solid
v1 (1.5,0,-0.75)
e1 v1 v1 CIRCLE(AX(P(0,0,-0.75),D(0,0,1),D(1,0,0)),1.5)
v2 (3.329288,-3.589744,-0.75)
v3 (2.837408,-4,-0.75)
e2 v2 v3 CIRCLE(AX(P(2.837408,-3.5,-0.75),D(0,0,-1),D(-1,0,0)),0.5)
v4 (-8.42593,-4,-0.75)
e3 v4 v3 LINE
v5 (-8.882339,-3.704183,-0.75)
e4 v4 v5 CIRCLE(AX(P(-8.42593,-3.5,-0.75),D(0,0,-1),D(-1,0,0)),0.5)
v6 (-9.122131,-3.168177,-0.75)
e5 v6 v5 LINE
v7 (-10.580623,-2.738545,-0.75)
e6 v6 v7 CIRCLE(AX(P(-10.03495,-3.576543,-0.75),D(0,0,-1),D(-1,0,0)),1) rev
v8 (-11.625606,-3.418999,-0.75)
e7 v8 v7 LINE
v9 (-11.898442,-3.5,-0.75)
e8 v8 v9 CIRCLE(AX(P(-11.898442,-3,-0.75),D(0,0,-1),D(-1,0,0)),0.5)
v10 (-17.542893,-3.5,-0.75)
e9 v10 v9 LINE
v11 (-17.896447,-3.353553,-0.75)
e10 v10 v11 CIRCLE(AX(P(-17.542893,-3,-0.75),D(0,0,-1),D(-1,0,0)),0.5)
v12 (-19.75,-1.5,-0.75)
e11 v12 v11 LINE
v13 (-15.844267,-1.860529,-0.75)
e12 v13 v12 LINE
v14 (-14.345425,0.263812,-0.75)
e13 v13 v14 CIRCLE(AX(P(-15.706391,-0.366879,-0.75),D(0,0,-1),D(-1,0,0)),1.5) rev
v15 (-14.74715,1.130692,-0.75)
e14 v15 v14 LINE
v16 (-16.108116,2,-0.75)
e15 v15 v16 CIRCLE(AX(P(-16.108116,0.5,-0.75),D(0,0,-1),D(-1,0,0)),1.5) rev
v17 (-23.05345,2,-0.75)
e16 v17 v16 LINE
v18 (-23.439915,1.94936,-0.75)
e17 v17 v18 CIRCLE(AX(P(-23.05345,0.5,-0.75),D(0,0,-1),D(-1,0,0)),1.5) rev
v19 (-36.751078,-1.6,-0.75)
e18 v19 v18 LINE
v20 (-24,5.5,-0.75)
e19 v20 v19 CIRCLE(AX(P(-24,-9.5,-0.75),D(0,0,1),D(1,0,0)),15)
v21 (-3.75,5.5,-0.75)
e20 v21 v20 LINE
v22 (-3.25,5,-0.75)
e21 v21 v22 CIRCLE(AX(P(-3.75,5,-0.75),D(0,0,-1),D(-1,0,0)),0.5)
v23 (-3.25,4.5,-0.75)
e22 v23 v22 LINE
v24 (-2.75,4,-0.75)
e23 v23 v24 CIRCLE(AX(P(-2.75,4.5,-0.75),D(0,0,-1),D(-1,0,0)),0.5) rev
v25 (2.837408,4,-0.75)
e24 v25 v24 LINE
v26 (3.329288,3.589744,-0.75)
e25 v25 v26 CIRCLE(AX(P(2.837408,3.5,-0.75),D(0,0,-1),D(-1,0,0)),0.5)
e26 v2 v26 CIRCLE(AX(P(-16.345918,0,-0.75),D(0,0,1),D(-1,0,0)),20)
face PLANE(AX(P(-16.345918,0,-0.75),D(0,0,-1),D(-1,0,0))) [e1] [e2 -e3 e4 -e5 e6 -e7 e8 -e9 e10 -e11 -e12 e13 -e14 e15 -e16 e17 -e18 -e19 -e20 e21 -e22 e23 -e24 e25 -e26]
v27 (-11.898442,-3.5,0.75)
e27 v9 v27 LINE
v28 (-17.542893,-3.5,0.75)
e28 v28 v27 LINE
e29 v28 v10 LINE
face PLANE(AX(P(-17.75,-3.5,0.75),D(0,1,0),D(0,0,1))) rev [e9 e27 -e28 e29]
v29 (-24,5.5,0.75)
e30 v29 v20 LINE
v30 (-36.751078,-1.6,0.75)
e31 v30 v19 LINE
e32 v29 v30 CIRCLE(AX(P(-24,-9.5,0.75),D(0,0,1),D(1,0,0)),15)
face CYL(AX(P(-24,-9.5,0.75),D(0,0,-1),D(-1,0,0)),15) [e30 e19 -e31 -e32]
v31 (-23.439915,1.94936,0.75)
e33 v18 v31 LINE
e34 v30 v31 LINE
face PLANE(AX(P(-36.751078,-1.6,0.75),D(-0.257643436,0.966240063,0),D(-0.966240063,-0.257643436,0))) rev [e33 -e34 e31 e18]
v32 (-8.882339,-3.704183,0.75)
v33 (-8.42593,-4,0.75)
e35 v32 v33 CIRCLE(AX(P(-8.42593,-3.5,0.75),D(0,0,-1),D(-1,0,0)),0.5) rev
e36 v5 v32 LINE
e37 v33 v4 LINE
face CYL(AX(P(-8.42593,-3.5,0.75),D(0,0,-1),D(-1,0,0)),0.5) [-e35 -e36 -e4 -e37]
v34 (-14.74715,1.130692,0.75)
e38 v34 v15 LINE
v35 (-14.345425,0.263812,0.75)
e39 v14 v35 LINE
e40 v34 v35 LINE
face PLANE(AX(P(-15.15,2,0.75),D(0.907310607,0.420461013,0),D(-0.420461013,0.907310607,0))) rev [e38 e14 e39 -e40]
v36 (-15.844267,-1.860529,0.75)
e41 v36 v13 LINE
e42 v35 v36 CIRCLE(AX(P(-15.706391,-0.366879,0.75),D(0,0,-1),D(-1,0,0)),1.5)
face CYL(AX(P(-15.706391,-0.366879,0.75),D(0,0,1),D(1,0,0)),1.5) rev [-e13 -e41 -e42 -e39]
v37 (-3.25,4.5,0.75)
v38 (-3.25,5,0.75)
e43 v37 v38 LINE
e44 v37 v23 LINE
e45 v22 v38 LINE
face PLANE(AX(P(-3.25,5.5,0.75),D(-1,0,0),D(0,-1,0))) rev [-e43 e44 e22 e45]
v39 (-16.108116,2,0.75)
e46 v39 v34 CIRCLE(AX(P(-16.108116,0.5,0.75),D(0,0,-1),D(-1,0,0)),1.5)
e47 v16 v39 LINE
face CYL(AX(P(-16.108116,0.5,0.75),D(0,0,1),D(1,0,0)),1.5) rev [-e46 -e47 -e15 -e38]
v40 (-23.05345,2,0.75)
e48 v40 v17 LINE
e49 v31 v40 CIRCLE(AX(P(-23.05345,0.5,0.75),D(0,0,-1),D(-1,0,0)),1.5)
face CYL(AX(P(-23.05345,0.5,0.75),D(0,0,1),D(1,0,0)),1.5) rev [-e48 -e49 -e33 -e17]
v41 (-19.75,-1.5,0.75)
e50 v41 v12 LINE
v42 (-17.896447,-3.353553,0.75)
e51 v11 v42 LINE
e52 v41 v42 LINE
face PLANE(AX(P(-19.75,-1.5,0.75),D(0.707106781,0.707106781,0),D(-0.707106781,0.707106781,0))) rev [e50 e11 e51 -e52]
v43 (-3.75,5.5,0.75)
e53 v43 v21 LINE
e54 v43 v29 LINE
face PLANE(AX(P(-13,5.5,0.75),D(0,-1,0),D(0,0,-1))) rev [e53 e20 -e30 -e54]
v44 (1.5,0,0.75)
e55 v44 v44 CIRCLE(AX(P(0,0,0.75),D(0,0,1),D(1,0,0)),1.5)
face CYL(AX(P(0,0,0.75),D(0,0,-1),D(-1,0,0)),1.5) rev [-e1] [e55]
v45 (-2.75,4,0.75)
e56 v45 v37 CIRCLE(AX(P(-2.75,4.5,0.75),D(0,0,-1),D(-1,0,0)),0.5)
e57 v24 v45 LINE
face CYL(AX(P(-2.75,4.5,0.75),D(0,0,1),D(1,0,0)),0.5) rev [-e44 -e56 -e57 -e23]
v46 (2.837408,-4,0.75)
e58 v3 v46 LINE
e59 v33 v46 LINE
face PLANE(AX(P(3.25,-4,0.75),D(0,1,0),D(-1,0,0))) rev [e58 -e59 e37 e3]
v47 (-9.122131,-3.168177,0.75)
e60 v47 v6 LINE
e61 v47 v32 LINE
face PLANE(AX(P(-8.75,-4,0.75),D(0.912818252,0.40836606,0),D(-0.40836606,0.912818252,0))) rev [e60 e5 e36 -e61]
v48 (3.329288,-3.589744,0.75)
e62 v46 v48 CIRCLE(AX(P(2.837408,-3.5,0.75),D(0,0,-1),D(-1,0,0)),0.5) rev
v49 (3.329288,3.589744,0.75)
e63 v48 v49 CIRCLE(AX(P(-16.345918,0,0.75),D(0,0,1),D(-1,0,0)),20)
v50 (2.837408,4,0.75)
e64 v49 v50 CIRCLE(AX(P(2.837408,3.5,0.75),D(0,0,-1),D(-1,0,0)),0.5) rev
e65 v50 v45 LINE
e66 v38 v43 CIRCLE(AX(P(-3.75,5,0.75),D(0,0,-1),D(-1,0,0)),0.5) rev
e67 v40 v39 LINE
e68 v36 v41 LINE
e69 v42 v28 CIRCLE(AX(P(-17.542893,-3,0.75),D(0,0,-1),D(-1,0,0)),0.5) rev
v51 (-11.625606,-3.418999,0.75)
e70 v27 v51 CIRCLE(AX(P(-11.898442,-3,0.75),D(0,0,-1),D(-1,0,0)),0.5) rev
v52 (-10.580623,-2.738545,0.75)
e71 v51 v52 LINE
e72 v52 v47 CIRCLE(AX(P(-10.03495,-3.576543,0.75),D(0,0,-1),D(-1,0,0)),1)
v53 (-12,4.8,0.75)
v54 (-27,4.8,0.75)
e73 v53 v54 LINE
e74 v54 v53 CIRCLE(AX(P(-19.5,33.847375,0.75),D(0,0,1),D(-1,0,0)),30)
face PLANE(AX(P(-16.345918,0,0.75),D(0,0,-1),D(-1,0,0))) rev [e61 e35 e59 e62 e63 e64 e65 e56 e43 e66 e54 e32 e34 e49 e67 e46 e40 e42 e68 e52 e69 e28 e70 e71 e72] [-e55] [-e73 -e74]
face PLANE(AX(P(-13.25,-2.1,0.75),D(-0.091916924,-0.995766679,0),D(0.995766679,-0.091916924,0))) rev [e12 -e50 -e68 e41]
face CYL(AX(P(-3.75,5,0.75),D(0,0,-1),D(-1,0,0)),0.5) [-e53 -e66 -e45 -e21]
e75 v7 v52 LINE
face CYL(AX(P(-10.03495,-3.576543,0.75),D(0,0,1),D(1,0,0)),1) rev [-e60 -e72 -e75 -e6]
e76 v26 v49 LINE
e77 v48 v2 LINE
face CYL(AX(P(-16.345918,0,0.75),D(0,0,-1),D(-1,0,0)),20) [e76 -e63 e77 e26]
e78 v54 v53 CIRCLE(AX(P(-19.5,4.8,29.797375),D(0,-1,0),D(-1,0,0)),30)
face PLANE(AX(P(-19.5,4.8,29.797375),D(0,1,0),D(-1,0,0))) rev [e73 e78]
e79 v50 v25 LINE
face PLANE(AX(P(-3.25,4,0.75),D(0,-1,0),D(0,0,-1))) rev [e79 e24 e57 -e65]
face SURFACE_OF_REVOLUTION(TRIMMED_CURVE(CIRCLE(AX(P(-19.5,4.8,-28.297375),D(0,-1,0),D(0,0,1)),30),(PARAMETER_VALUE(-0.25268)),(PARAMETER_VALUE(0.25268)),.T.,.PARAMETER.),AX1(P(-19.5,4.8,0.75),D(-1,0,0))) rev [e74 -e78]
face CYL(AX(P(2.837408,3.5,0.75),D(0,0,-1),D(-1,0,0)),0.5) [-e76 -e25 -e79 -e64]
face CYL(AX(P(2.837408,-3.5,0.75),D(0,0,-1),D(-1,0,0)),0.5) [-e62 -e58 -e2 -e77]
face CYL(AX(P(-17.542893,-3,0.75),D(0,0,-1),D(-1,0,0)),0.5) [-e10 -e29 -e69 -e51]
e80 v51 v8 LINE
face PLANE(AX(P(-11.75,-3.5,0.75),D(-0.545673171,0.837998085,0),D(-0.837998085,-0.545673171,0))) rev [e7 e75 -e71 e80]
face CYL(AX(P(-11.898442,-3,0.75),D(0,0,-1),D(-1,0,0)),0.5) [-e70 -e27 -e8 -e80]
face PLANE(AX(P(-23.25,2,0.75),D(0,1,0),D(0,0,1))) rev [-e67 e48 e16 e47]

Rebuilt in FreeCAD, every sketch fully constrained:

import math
import FreeCAD as App
import Part
import Sketcher
from FreeCAD import Vector
Q = App.Units.Quantity


def edges_at(feature, points):
    """Names of the edges that pass closest to the given points."""
    edges = feature.Shape.Edges
    near = lambda p: min(range(len(edges)), key=lambda i: edges[i].distToShape(Part.Vertex(*p))[0])
    return sorted({f"Edge{near(p) + 1}" for p in points})

doc = App.newDocument("Part")
params = doc.addObject("Spreadsheet::Sheet", "Params")
for row, (alias, value) in enumerate([
    ("sketch1_diameter", "3 mm"),
    ("sketch1_radius", "20 mm"),
    ("sketch1_width", "12 mm"),
    ("sketch1_width2", "6.5 mm"),
    ("sketch1_height", "1.5 mm"),
    ("pad1_length", "1.5 mm"),
    ("sketch2_radius", "15 mm"),
    ("sketch2_width", "11 mm"),
    ("sketch2_width2", "6 mm"),
    ("sketch2_width3", "8.1 mm"),
    ("pad2_length", "1.5 mm"),
    ("fillet_radius", "1 mm"),
    ("fillet2_radius", "0.5 mm"),
    ("fillet3_radius", "1.5 mm"),
    ("sketch3_radius", "30 mm"),
    ("sketch3_width", "15 mm"),
    ("groove_angle", "90 deg"),
], start=1):
    params.set(f"A{row}", alias)
    params.set(f"B{row}", "=" + value)
    params.setAlias(f"B{row}", alias)

body = doc.addObject("PartDesign::Body", "Body")

# Sketch on XY plane
sketch1 = body.newObject("Sketcher::SketchObject", "Sketch")
sketch1.AttachmentSupport = (doc.getObject("XY_Plane"), [""])
sketch1.MapMode = "FlatFace"
sketch1.addGeometry(Part.LineSegment(Vector(-3.2, 5.5, 0), Vector(-13, 5.5, 0)), False)
sketch1.addGeometry(Part.LineSegment(Vector(-13, 5.5, 0), Vector(-8.8, -4, 0)), False)
sketch1.addGeometry(Part.LineSegment(Vector(-8.8, -4, 0), Vector(3.2, -4, 0)), False)
sketch1.addGeometry(Part.ArcOfCircle(Part.Circle(Vector(-16.3, 0, 0), Vector(0, 0, 1), 20), math.radians(-12), math.radians(12)), False)
sketch1.addGeometry(Part.LineSegment(Vector(3.2, 4, 0), Vector(-3.2, 4, 0)), False)
sketch1.addGeometry(Part.LineSegment(Vector(-3.2, 4, 0), Vector(-3.2, 5.5, 0)), False)
sketch1.addGeometry(Part.Circle(Vector(0, 0, 0), Vector(0, 0, 1), 1.5), False)
sketch1.addConstraint(Sketcher.Constraint("Coincident", 0, 2, 1, 1))
sketch1.addConstraint(Sketcher.Constraint("Coincident", 1, 2, 2, 1))
sketch1.addConstraint(Sketcher.Constraint("Coincident", 2, 2, 3, 1))
sketch1.addConstraint(Sketcher.Constraint("Coincident", 3, 2, 4, 1))
sketch1.addConstraint(Sketcher.Constraint("Coincident", 4, 2, 5, 1))
sketch1.addConstraint(Sketcher.Constraint("Coincident", 5, 2, 0, 1))
sketch1.addConstraint(Sketcher.Constraint("Horizontal", 0))
sketch1.addConstraint(Sketcher.Constraint("Horizontal", 2))
sketch1.addConstraint(Sketcher.Constraint("Horizontal", 4))
sketch1.addConstraint(Sketcher.Constraint("Vertical", 5))
sketch1.addConstraint(Sketcher.Constraint("Coincident", 6, 3, -1, 1))
sketch1.addConstraint(Sketcher.Constraint("Symmetric", 2, 2, 4, 2, -1, 1))
sketch1.addConstraint(Sketcher.Constraint("PointOnObject", 3, 3, -1))
sketch1.addConstraint(Sketcher.Constraint("Diameter", 6, 3.0))
sketch1.addConstraint(Sketcher.Constraint("Radius", 3, 20.0))
sketch1.addConstraint(Sketcher.Constraint("DistanceX", 2, 1, 2, 2, 12.0))
sketch1.addConstraint(Sketcher.Constraint("DistanceX", 4, 2, 4, 1, 6.5))
sketch1.addConstraint(Sketcher.Constraint("DistanceY", 5, 1, 5, 2, 1.5))
sketch1.addConstraint(Sketcher.Constraint("DistanceX", 0, 2, -1, 1, 13.0))
sketch1.addConstraint(Sketcher.Constraint("DistanceY", 1, 2, -1, 1, 4.0))
sketch1.setExpression("Constraints[13]", "Params.sketch1_diameter")
sketch1.setExpression("Constraints[14]", "Params.sketch1_radius")
sketch1.setExpression("Constraints[15]", "Params.sketch1_width")
sketch1.setExpression("Constraints[16]", "Params.sketch1_width2")
sketch1.setExpression("Constraints[17]", "Params.sketch1_height")
pad1 = body.newObject("PartDesign::Pad", "Pad")
pad1.Profile = sketch1
pad1.setExpression("Length", "Params.pad1_length")
pad1.Midplane = True

# Sketch on XY plane
sketch2 = body.newObject("Sketcher::SketchObject", "Sketch001")
sketch2.AttachmentSupport = (doc.getObject("XY_Plane"), [""])
sketch2.MapMode = "FlatFace"
sketch2.addGeometry(Part.LineSegment(Vector(-13, 5.5, 0), Vector(-24, 5.5, 0)), False)
sketch2.addGeometry(Part.ArcOfCircle(Part.Circle(Vector(-24, -9.5, 0), Vector(0, 0, 1), 15), math.radians(90), math.radians(148)), False)
sketch2.addGeometry(Part.LineSegment(Vector(-36.8, -1.6, 0), Vector(-23.2, 2, 0)), False)
sketch2.addGeometry(Part.LineSegment(Vector(-23.2, 2, 0), Vector(-15.2, 2, 0)), False)
sketch2.addGeometry(Part.LineSegment(Vector(-15.2, 2, 0), Vector(-13.2, -2.1, 0)), False)
sketch2.addGeometry(Part.LineSegment(Vector(-13.2, -2.1, 0), Vector(-19.8, -1.5, 0)), False)
sketch2.addGeometry(Part.LineSegment(Vector(-19.8, -1.5, 0), Vector(-17.8, -3.5, 0)), False)
sketch2.addGeometry(Part.LineSegment(Vector(-17.8, -3.5, 0), Vector(-11.8, -3.5, 0)), False)
sketch2.addGeometry(Part.LineSegment(Vector(-11.8, -3.5, 0), Vector(-9.6, -2.1, 0)), False)
sketch2.addGeometry(Part.LineSegment(Vector(-9.6, -2.1, 0), Vector(-13, 5.5, 0)), False)
sketch2.addConstraint(Sketcher.Constraint("Tangent", 0, 2, 1, 1))
sketch2.addConstraint(Sketcher.Constraint("Coincident", 1, 2, 2, 1))
sketch2.addConstraint(Sketcher.Constraint("Coincident", 2, 2, 3, 1))
sketch2.addConstraint(Sketcher.Constraint("Coincident", 3, 2, 4, 1))
sketch2.addConstraint(Sketcher.Constraint("Coincident", 4, 2, 5, 1))
sketch2.addConstraint(Sketcher.Constraint("Coincident", 5, 2, 6, 1))
sketch2.addConstraint(Sketcher.Constraint("Coincident", 6, 2, 7, 1))
sketch2.addConstraint(Sketcher.Constraint("Coincident", 7, 2, 8, 1))
sketch2.addConstraint(Sketcher.Constraint("Coincident", 8, 2, 9, 1))
sketch2.addConstraint(Sketcher.Constraint("Coincident", 9, 2, 0, 1))
sketch2.addConstraint(Sketcher.Constraint("Horizontal", 0))
sketch2.addConstraint(Sketcher.Constraint("Horizontal", 3))
sketch2.addConstraint(Sketcher.Constraint("Horizontal", 7))
sketch2.addConstraint(Sketcher.Constraint("Horizontal", 4, 2, 8, 2))
sketch2.addConstraint(Sketcher.Constraint("Radius", 1, 15.0))
sketch2.addConstraint(Sketcher.Constraint("DistanceX", 0, 2, 0, 1, 11.0))
sketch2.addConstraint(Sketcher.Constraint("DistanceX", 7, 1, 7, 2, 6.0))
sketch2.addConstraint(Sketcher.Constraint("Angle", 6, Q("-45 deg")))
sketch2.addConstraint(Sketcher.Constraint("DistanceX", 3, 1, 3, 2, 8.1))
sketch2.addConstraint(Sketcher.Constraint("DistanceX", 1, 3, -1, 1, 24.0))
sketch2.addConstraint(Sketcher.Constraint("DistanceY", -1, 1, 2, 2, 2.0))
sketch2.addConstraint(Sketcher.Constraint("DistanceX", 2, 2, 4, 2, 10.0))
sketch2.addConstraint(Sketcher.Constraint("DistanceY", 5, 2, 0, 2, 7.0))
sketch2.addConstraint(Sketcher.Constraint("DistanceX", 5, 2, 6, 2, 2.0))
sketch2.addConstraint(Sketcher.Constraint("DistanceY", 1, 3, -1, 1, 9.5))
sketch2.addConstraint(Sketcher.Constraint("DistanceY", 1, 2, -1, 1, 1.6))
sketch2.addConstraint(Sketcher.Constraint("DistanceY", 4, 2, -1, 1, 2.1))
sketch2.addConstraint(Sketcher.Constraint("DistanceX", 8, 2, -1, 1, 9.6))
sketch2.addConstraint(Sketcher.Constraint("DistanceX", 2, 2, 5, 2, 3.5))
sketch2.addConstraint(Sketcher.Constraint("DistanceX", 2, 2, -1, 1, 23.25))
sketch2.setExpression("Constraints[14]", "Params.sketch2_radius")
sketch2.setExpression("Constraints[15]", "Params.sketch2_width")
sketch2.setExpression("Constraints[16]", "Params.sketch2_width2")
sketch2.setExpression("Constraints[18]", "Params.sketch2_width3")
pad2 = body.newObject("PartDesign::Pad", "Pad001")
pad2.Profile = sketch2
pad2.setExpression("Length", "Params.pad2_length")
pad2.Midplane = True
doc.recompute()

fillet = body.newObject("PartDesign::Fillet", "Fillet")
fillet.Base = (pad2, edges_at(pad2, [(-9.6, -2.1, 0)]))
fillet.setExpression("Radius", "Params.fillet_radius")
doc.recompute()

fillet2 = body.newObject("PartDesign::Fillet", "Fillet001")
fillet2.Base = (fillet, edges_at(fillet, [
    (-3.25, 4, 0),
    (3.25, 4, 0),
    (3.25, -4, 0),
    (-8.75, -4, 0),
    (-3.25, 5.5, 0),
    (-17.75, -3.5, 0),
    (-11.75, -3.5, 0),
]))
fillet2.setExpression("Radius", "Params.fillet2_radius")
doc.recompute()

fillet3 = body.newObject("PartDesign::Fillet", "Fillet002")
fillet3.Base = (fillet2, edges_at(fillet2, [(-23.25, 2, 0), (-15.15, 2, 0), (-13.25, -2.1, 0)]))
fillet3.setExpression("Radius", "Params.fillet3_radius")

# Sketch on XY plane
sketch3 = body.newObject("Sketcher::SketchObject", "Sketch002")
sketch3.AttachmentSupport = (doc.getObject("XY_Plane"), [""])
sketch3.MapMode = "FlatFace"
sketch3.AttachmentOffset = App.Placement(Vector(0, 0, 0.75), App.Rotation())
sketch3.addGeometry(Part.LineSegment(Vector(-12, 5, 0), Vector(-27, 5, 0)), False)
sketch3.addGeometry(Part.ArcOfCircle(Part.Circle(Vector(-20, 34, 0), Vector(0, 0, 1), 30), math.radians(-104), math.radians(-76)), False)
sketch3.addGeometry(Part.LineSegment(Vector(-27, 5, 0), Vector(-12, 5, 0)), True)  # axis
sketch3.addConstraint(Sketcher.Constraint("Coincident", 0, 1, 1, 2))
sketch3.addConstraint(Sketcher.Constraint("Coincident", 1, 1, 0, 2))
sketch3.addConstraint(Sketcher.Constraint("Horizontal", 0))
sketch3.addConstraint(Sketcher.Constraint("Horizontal", 2))
sketch3.addConstraint(Sketcher.Constraint("Coincident", 2, 1, 1, 1))
sketch3.addConstraint(Sketcher.Constraint("Equal", 0, 2))
sketch3.addConstraint(Sketcher.Constraint("Radius", 1, 30.0))
sketch3.addConstraint(Sketcher.Constraint("DistanceX", 0, 2, 0, 1, 15.0))
sketch3.addConstraint(Sketcher.Constraint("DistanceX", 0, 1, -1, 1, 12.0))
sketch3.addConstraint(Sketcher.Constraint("DistanceY", -1, 1, 0, 1, 4.8))
sketch3.setExpression("Constraints[6]", "Params.sketch3_radius")
sketch3.setExpression("Constraints[7]", "Params.sketch3_width")
groove = body.newObject("PartDesign::Groove", "Groove")
groove.Profile = sketch3
groove.ReferenceAxis = (sketch3, ["Axis0"])
groove.setExpression("Angle", "Params.groove_angle")

doc.recompute()
